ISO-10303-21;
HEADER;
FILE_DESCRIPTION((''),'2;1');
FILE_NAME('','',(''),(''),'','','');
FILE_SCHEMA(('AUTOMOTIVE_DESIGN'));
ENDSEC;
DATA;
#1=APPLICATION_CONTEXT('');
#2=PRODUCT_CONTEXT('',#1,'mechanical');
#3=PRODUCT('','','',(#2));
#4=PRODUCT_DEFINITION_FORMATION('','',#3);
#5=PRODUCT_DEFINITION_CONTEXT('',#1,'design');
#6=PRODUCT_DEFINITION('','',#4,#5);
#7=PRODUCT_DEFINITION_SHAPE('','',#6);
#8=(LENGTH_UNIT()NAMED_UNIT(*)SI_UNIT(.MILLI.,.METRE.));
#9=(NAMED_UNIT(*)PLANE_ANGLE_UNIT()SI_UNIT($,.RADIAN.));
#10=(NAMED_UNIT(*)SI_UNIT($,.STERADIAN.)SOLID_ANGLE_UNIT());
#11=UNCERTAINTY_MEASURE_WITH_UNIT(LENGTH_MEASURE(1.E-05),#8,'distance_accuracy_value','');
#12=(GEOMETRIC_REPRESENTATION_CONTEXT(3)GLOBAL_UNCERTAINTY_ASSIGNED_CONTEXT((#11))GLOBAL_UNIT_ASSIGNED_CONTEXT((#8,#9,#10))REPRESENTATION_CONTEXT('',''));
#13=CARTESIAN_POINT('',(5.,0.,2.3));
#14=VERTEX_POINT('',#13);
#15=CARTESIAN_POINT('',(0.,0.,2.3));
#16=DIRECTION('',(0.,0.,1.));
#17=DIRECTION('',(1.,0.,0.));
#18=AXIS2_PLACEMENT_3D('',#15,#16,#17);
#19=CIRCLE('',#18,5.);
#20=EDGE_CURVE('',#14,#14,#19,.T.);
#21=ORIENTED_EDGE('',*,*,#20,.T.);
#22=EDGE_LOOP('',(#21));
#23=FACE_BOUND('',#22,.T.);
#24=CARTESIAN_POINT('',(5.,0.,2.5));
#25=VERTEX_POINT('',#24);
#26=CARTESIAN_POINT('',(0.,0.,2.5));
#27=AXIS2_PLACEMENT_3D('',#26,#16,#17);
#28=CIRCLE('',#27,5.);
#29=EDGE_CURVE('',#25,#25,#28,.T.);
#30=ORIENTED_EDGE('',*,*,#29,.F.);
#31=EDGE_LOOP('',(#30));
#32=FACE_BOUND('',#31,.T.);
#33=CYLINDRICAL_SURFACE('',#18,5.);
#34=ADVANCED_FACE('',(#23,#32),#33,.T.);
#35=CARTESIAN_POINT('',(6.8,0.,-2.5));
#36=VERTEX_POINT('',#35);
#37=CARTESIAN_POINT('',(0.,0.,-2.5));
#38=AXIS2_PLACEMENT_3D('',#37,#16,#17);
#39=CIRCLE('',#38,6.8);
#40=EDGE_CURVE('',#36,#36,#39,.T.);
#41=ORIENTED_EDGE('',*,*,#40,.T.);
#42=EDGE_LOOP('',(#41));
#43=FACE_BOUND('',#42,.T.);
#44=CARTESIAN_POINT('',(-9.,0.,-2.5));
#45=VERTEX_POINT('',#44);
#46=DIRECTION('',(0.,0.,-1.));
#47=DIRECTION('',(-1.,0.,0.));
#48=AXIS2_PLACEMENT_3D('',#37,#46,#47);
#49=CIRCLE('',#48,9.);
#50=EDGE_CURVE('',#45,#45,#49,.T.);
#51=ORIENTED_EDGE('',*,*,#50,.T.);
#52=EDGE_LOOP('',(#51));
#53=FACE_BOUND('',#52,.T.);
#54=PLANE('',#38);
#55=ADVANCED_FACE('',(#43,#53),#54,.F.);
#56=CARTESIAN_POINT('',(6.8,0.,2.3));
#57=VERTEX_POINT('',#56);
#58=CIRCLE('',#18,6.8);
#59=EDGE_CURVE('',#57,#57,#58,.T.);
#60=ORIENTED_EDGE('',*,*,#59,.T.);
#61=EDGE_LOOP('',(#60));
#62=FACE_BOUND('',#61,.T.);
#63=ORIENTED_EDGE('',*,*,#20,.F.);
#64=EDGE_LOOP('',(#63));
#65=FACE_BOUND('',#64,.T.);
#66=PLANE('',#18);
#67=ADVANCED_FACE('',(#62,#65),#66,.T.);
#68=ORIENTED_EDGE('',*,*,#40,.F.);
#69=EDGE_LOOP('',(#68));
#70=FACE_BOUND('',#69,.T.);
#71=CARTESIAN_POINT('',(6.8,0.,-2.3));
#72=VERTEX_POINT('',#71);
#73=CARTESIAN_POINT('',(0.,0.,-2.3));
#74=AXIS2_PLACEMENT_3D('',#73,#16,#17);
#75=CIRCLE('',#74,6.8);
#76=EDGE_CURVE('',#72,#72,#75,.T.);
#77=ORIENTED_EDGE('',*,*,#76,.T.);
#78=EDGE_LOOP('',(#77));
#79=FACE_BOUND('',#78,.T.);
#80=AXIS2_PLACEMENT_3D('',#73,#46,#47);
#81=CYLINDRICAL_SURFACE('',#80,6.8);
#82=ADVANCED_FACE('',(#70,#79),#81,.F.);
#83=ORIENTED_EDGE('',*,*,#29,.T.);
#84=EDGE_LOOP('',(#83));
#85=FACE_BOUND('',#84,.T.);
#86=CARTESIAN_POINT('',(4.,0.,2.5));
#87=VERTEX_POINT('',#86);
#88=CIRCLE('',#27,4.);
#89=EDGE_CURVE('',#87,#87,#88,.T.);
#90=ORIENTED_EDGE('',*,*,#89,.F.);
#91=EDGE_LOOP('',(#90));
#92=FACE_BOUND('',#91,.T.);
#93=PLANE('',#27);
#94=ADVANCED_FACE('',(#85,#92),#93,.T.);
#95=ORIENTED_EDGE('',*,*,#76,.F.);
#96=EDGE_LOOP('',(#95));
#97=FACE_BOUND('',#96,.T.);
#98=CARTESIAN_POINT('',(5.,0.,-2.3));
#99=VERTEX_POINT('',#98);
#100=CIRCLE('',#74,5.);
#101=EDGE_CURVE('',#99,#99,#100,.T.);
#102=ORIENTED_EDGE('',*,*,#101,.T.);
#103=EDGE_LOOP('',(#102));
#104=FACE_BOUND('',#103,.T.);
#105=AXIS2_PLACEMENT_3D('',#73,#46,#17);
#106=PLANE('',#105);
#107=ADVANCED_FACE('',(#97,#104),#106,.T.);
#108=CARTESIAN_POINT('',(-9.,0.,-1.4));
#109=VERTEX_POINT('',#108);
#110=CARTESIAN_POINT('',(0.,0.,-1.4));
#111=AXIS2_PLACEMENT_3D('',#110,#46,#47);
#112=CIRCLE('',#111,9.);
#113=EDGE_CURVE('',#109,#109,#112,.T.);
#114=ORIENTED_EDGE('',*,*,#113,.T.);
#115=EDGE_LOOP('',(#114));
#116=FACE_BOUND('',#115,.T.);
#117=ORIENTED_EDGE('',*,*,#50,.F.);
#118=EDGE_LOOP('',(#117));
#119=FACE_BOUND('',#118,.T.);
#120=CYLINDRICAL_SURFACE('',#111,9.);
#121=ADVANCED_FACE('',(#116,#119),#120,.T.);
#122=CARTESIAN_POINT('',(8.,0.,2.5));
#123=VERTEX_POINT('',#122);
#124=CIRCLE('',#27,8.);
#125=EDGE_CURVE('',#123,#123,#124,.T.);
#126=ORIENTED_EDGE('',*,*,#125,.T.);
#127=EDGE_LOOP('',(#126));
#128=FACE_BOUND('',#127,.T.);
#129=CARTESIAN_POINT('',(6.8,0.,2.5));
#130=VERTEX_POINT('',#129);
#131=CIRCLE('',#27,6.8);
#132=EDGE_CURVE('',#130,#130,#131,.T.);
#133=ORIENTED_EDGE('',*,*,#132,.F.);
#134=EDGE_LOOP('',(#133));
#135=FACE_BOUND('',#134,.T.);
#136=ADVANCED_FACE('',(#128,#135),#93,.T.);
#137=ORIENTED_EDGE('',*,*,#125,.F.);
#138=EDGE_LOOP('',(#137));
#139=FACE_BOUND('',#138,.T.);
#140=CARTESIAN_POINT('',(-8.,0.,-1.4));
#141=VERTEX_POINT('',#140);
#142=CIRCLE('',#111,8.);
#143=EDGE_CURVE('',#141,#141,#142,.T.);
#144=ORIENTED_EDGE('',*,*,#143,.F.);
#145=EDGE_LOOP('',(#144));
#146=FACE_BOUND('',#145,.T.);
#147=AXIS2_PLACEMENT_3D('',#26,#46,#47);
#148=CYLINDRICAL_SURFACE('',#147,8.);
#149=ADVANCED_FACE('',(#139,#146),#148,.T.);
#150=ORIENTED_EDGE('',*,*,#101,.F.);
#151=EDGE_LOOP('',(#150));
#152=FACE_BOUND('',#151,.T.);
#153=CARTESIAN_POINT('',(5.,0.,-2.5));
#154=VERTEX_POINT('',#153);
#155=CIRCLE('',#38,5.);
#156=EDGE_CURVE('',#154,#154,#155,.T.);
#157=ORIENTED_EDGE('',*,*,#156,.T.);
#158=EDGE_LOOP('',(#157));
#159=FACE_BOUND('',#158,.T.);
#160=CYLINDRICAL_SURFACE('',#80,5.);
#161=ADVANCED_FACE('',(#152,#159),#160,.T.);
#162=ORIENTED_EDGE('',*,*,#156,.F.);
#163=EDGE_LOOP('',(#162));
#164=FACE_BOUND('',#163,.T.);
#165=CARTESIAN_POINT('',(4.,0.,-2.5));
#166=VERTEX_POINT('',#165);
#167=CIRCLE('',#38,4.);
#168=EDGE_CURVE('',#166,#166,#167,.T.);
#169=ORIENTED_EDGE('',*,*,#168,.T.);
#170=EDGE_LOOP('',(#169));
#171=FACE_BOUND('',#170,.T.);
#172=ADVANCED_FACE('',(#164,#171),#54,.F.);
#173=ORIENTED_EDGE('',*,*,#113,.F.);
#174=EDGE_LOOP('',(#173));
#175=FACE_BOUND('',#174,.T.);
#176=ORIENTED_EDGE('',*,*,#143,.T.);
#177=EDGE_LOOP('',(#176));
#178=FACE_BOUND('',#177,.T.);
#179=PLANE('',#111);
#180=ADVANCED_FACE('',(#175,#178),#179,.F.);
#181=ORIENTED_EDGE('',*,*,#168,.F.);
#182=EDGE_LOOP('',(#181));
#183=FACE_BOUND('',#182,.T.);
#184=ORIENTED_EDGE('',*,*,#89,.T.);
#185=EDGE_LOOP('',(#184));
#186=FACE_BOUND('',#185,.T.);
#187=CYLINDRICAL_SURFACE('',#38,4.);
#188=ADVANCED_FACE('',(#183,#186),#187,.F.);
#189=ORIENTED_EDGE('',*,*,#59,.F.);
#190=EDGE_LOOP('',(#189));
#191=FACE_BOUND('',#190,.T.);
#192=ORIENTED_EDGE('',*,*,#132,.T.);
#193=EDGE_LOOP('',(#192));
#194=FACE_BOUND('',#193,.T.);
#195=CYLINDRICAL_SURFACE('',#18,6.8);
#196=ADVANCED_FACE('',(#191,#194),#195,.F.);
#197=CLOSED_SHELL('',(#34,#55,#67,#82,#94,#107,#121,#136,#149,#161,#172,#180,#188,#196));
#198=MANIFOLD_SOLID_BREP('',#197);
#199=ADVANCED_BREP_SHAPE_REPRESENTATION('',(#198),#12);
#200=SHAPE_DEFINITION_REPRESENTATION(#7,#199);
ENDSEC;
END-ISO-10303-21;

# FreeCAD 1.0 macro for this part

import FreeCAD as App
import Part
import Sketcher
Q = App.Units.Quantity

doc = App.newDocument("Part")
body = doc.addObject("PartDesign::Body", "Body")

# Sketch on XY plane
sketch1 = body.newObject("Sketcher::SketchObject", "Sketch")
sketch1.AttachmentSupport = (doc.getObject("XY_Plane"), [""])
sketch1.MapMode = "FlatFace"
sketch1.addGeometry(Part.Circle(App.Vector(0, 0, 0), App.Vector(0, 0, 1), 8), False)
sketch1.addConstraint([
    Sketcher.Constraint("Coincident", 0, 3, -1, 1),
    Sketcher.Constraint("Diameter", 0, Q("16 mm")),
])
pad1 = body.newObject("PartDesign::Pad", "Pad")
pad1.Profile = sketch1
pad1.Length = 5
pad1.Midplane = True

# Sketch on XY plane
sketch2 = body.newObject("Sketcher::SketchObject", "Sketch001")
sketch2.AttachmentSupport = (doc.getObject("XY_Plane"), [""])
sketch2.MapMode = "FlatFace"
sketch2.AttachmentOffset = App.Placement(App.Vector(0, 0, -2.5), App.Rotation())
sketch2.addGeometry(Part.Circle(App.Vector(0, 0, 0), App.Vector(0, 0, 1), 9), False)
sketch2.addConstraint([
    Sketcher.Constraint("Coincident", 0, 3, -1, 1),
    Sketcher.Constraint("Diameter", 0, Q("18 mm")),
])
pad2 = body.newObject("PartDesign::Pad", "Pad001")
pad2.Profile = sketch2
pad2.Length = 1.1

# Sketch on XY plane
sketch3 = body.newObject("Sketcher::SketchObject", "Sketch002")
sketch3.AttachmentSupport = (doc.getObject("XY_Plane"), [""])
sketch3.MapMode = "FlatFace"
sketch3.AttachmentOffset = App.Placement(App.Vector(0, 0, 2.5), App.Rotation())
sketch3.addGeometry(Part.Circle(App.Vector(0, 0, 0), App.Vector(0, 0, 1), 4), False)
sketch3.addConstraint([
    Sketcher.Constraint("Coincident", 0, 3, -1, 1),
    Sketcher.Constraint("Diameter", 0, Q("8 mm")),
])
pocket1 = body.newObject("PartDesign::Pocket", "Pocket")
pocket1.Profile = sketch3
pocket1.Type = "ThroughAll"

# Sketch on XY plane
sketch4 = body.newObject("Sketcher::SketchObject", "Sketch003")
sketch4.AttachmentSupport = (doc.getObject("XY_Plane"), [""])
sketch4.MapMode = "FlatFace"
sketch4.AttachmentOffset = App.Placement(App.Vector(0, 0, 2.5), App.Rotation())
sketch4.addGeometry([
    Part.Circle(App.Vector(0, 0, 0), App.Vector(0, 0, 1), 7),
    Part.Circle(App.Vector(0, 0, 0), App.Vector(0, 0, 1), 5),
], False)
sketch4.addConstraint([
    Sketcher.Constraint("Coincident", 0, 3, -1, 1),
    Sketcher.Constraint("Coincident", 1, 3, -1, 1),
    Sketcher.Constraint("Diameter", 1, Q("10 mm")),
    Sketcher.Constraint("Diameter", 0, Q("13.6 mm")),
])
pocket2 = body.newObject("PartDesign::Pocket", "Pocket001")
pocket2.Profile = sketch4
pocket2.Length = 0.2
doc.recompute()

mirrored = body.newObject("PartDesign::Mirrored", "Mirrored")
mirrored.Originals = [pocket2]
mirrored.MirrorPlane = (doc.getObject("XY_Plane"), [""])
body.Tip = mirrored

doc.recompute()
